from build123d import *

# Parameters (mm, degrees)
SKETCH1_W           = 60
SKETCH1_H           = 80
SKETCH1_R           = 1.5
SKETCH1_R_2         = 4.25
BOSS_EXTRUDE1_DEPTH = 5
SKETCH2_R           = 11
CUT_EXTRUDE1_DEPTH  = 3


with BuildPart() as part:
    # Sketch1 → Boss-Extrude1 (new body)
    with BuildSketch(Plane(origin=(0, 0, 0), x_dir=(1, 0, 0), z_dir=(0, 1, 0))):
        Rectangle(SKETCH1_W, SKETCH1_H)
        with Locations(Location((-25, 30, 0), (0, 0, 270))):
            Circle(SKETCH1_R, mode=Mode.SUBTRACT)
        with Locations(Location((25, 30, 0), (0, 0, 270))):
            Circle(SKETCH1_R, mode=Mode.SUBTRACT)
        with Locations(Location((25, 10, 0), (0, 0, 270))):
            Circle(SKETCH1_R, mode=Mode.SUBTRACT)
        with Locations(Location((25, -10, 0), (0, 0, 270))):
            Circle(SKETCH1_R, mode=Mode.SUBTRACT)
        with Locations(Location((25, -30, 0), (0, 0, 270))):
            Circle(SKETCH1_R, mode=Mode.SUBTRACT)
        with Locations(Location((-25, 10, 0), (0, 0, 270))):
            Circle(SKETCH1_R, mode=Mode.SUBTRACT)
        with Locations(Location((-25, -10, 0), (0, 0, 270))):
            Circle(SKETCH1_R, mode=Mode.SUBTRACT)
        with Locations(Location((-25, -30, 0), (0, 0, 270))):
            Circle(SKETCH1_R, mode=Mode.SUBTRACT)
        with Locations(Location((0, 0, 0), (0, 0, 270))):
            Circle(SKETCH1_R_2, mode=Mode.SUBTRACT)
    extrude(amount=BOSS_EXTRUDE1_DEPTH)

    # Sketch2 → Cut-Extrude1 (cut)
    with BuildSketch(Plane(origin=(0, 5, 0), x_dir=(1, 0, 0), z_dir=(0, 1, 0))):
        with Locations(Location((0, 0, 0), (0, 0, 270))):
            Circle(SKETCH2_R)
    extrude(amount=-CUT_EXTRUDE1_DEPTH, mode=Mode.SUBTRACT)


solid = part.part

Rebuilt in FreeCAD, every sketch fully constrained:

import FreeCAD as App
import Part
import Sketcher


def add_polygon(sketch, points):
    """Adds a closed chain of lines whose ends are joined by coincident constraints."""
    first, n = sketch.GeometryCount, len(points)
    for a, b in zip(points, points[1:] + points[:1]):
        sketch.addGeometry(Part.LineSegment(App.Vector(*a, 0), App.Vector(*b, 0)), False)
    for i in range(n):
        sketch.addConstraint(Sketcher.Constraint("Coincident", first + i, 2, first + (i + 1) % n, 1))

doc = App.newDocument("Part")
body = doc.addObject("PartDesign::Body", "Body")

sketch1 = body.newObject("Sketcher::SketchObject", "Sketch")
sketch1.AttachmentSupport = (doc.getObject("XZ_Plane"), [""])
sketch1.MapMode = "FlatFace"
add_polygon(sketch1, [(-30, -40), (-30, 40), (30, 40), (30, -40)])
sketch1.addGeometry(Part.Circle(App.Vector(-25, 30, 0), App.Vector(0, 0, 1), 1.5), False)
sketch1.addGeometry(Part.Circle(App.Vector(-25, 10, 0), App.Vector(0, 0, 1), 1.5), False)
sketch1.addGeometry(Part.Circle(App.Vector(25, 30, 0), App.Vector(0, 0, 1), 1.5), False)
sketch1.addGeometry(Part.Circle(App.Vector(25, 10, 0), App.Vector(0, 0, 1), 1.5), False)
sketch1.addGeometry(Part.Circle(App.Vector(-25, -10, 0), App.Vector(0, 0, 1), 1.5), False)
sketch1.addGeometry(Part.Circle(App.Vector(-25, -30, 0), App.Vector(0, 0, 1), 1.5), False)
sketch1.addGeometry(Part.Circle(App.Vector(0, 0, 0), App.Vector(0, 0, 1), 4.2), False)
sketch1.addGeometry(Part.Circle(App.Vector(25, -10, 0), App.Vector(0, 0, 1), 1.5), False)
sketch1.addGeometry(Part.Circle(App.Vector(25, -30, 0), App.Vector(0, 0, 1), 1.5), False)
sketch1.addConstraint([
    Sketcher.Constraint("Vertical", 0),
    Sketcher.Constraint("Horizontal", 1),
    Sketcher.Constraint("Vertical", 2),
    Sketcher.Constraint("Horizontal", 3),
    Sketcher.Constraint("Coincident", 10, 3, -1, 1),
    Sketcher.Constraint("Equal", 4, 5),
    Sketcher.Constraint("Equal", 5, 6),
    Sketcher.Constraint("Equal", 6, 7),
    Sketcher.Constraint("Equal", 7, 8),
    Sketcher.Constraint("Equal", 8, 9),
    Sketcher.Constraint("Equal", 9, 11),
    Sketcher.Constraint("Equal", 11, 12),
    Sketcher.Constraint("Symmetric", 7, 3, 8, 3, -1, 1),
    Sketcher.Constraint("Symmetric", 6, 3, 9, 3, -1, 1),
    Sketcher.Constraint("Symmetric", 5, 3, 11, 3, -1, 1),
    Sketcher.Constraint("Symmetric", 4, 3, 12, 3, -1, 1),
    Sketcher.Constraint("Symmetric", 0, 2, 2, 2, -1, 1),
    Sketcher.Constraint("Symmetric", 4, 3, 6, 3, -2),
    Sketcher.Constraint("Symmetric", 5, 3, 7, 3, -2),
    Sketcher.Constraint("Vertical", 4, 3, 5, 3),
    Sketcher.Constraint("Diameter", 4, 3.0),
    Sketcher.Constraint("Diameter", 10, 8.5),
    Sketcher.Constraint("DistanceX", 1, 1, 1, 2, 60.0),
    Sketcher.Constraint("DistanceY", 0, 1, 0, 2, 80.0),
    Sketcher.Constraint("DistanceX", 4, 3, -1, 1, 25.0),
    Sketcher.Constraint("DistanceY", -1, 1, 4, 3, 30.0),
    Sketcher.Constraint("DistanceY", -1, 1, 5, 3, 10.0),
])
pad1 = body.newObject("PartDesign::Pad", "Pad")
pad1.Profile = sketch1
pad1.Length = 5
pad1.Reversed = True

sketch2 = body.newObject("Sketcher::SketchObject", "Sketch001")
sketch2.AttachmentSupport = (doc.getObject("XZ_Plane"), [""])
sketch2.MapMode = "FlatFace"
sketch2.AttachmentOffset = App.Placement(App.Vector(0, 0, -5), App.Rotation())
sketch2.addGeometry(Part.Circle(App.Vector(0, 0, 0), App.Vector(0, 0, 1), 11), False)
sketch2.addConstraint([
    Sketcher.Constraint("Coincident", 0, 3, -1, 1),
    Sketcher.Constraint("Diameter", 0, 22.0),
])
pocket1 = body.newObject("PartDesign::Pocket", "Pocket")
pocket1.Profile = sketch2
pocket1.Length = 3
pocket1.Reversed = True

doc.recompute()
